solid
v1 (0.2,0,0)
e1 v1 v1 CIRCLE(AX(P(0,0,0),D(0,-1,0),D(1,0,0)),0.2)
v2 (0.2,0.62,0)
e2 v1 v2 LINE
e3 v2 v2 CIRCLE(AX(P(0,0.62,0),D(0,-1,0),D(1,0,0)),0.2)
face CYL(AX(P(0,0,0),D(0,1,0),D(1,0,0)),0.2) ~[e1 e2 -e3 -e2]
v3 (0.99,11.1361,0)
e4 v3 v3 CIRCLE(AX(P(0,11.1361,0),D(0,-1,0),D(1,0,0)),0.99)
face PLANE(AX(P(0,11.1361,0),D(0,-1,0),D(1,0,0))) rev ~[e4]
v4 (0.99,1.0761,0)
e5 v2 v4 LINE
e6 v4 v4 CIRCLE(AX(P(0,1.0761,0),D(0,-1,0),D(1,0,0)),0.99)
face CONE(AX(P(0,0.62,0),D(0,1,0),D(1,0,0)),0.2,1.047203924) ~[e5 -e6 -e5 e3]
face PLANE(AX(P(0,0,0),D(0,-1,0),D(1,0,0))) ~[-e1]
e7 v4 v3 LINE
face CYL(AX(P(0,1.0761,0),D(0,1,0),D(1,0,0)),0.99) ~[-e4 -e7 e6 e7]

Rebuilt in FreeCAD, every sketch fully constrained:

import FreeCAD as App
import Part
import Sketcher
from FreeCAD import Vector
Q = App.Units.Quantity


def add_polygon(sketch, points):
    """Adds a closed chain of lines whose ends are joined by coincident constraints."""
    first, n = sketch.GeometryCount, len(points)
    for a, b in zip(points, points[1:] + points[:1]):
        sketch.addGeometry(Part.LineSegment(App.Vector(*a, 0), App.Vector(*b, 0)), False)
    for i in range(n):
        sketch.addConstraint(Sketcher.Constraint("Coincident", first + i, 2, first + (i + 1) % n, 1))

doc = App.newDocument("Part")
body = doc.addObject("PartDesign::Body", "Body")

# Sketch on XY plane
sketch1 = body.newObject("Sketcher::SketchObject", "Sketch")
sketch1.AttachmentSupport = (doc.getObject("XY_Plane"), [""])
sketch1.MapMode = "FlatFace"
add_polygon(sketch1, [(0, 0), (0.2, 0), (0.2, 0.62), (0.99, 1.08), (0.99, 11.14), (0, 11.14)])  # lines 0-5
sketch1.addConstraint([
    Sketcher.Constraint("Horizontal", 0),
    Sketcher.Constraint("Vertical", 1),
    Sketcher.Constraint("Vertical", 3),
    Sketcher.Constraint("Horizontal", 4),
    Sketcher.Constraint("Vertical", 5),
    Sketcher.Constraint("Coincident", 5, 2, -1, 1),
    Sketcher.Constraint("DistanceX", 0, 1, 0, 2, Q("0.2 mm")),
    Sketcher.Constraint("DistanceX", 4, 2, 4, 1, Q("0.99 mm")),
    Sketcher.Constraint("DistanceY", 1, 1, 1, 2, Q("0.62 mm")),
    Sketcher.Constraint("DistanceY", 3, 1, 3, 2, Q("10.06 mm")),
    Sketcher.Constraint("Angle", 2, Q("29.9996 deg")),
])
revolution = body.newObject("PartDesign::Revolution", "Revolution")
revolution.Profile = sketch1
revolution.ReferenceAxis = (sketch1, ["V_Axis"])
revolution.Angle = 360

doc.recompute()
